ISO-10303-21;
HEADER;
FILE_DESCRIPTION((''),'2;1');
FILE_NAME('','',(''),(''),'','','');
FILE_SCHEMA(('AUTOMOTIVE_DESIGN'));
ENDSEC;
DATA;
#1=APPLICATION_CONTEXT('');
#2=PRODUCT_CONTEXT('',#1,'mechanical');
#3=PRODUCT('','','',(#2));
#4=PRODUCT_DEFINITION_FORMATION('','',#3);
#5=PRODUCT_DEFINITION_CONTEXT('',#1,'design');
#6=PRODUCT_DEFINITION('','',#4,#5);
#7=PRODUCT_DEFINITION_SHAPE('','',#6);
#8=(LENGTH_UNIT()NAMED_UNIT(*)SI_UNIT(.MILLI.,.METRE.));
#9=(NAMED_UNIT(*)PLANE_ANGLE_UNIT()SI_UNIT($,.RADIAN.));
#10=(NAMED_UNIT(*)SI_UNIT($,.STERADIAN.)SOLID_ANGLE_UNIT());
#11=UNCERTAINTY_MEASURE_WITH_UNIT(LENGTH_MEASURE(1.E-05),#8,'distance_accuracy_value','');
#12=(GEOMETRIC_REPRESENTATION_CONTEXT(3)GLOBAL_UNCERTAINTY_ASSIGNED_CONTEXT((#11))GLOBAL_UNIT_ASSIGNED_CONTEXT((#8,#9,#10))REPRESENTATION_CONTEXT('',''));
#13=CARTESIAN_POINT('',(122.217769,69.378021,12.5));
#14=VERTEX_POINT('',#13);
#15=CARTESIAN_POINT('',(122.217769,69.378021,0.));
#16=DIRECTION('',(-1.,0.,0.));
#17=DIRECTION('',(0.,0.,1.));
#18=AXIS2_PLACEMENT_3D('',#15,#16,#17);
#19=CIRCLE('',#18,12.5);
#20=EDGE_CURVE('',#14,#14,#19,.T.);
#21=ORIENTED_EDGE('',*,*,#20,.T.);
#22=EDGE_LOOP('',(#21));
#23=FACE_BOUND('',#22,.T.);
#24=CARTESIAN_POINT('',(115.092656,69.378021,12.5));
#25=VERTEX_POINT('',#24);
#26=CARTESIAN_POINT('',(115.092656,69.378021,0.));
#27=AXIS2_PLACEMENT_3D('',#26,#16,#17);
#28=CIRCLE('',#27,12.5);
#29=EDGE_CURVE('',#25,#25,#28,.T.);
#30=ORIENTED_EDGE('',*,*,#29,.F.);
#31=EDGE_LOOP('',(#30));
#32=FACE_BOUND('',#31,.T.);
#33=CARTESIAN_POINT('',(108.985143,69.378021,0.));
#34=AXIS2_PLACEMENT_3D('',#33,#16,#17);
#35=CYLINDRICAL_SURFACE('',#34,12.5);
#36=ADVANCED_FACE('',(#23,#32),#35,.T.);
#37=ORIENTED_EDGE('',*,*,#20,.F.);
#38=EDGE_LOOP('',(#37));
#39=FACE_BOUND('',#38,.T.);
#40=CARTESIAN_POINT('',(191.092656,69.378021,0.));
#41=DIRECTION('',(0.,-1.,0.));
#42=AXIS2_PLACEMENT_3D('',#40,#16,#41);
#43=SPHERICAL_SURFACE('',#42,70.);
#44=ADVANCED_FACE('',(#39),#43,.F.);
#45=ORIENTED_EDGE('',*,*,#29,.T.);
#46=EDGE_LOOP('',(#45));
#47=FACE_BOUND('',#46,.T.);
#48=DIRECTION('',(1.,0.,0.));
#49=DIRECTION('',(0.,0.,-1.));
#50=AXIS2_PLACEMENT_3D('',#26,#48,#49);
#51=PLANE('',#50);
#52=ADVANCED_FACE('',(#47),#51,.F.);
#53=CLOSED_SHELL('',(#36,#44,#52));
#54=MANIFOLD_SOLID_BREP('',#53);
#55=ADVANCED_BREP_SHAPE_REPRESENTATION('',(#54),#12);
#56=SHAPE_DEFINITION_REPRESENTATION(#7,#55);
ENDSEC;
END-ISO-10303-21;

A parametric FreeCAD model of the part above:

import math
import FreeCAD as App
import Part
import Sketcher
from FreeCAD import Vector

doc = App.newDocument("Part")
body = doc.addObject("PartDesign::Body", "Body")

sketch1 = doc.addObject("Sketcher::SketchObject", "Sketch")
body.addObject(sketch1)
sketch1.AttachmentSupport = (doc.XY_Plane, [""])
sketch1.MapMode = "FlatFace"
sketch1.addGeometry([
    Part.LineSegment(Vector(115, 82, 0), Vector(115, 69, 0)),
    Part.LineSegment(Vector(115, 69, 0), Vector(121, 69, 0)),
    Part.ArcOfCircle(Part.Circle(Vector(191, 69, 0), Vector(0, 0, 1), 70), math.radians(169.71), math.radians(180)),
    Part.LineSegment(Vector(122, 82, 0), Vector(115, 82, 0)),
], False)
sketch1.addGeometry(Part.LineSegment(Vector(115, 69, 0), Vector(191, 69, 0)), True)
sketch1.addConstraint([
    Sketcher.Constraint("Coincident", 0, 2, 1, 1),
    Sketcher.Constraint("Coincident", 1, 2, 2, 2),
    Sketcher.Constraint("Coincident", 2, 1, 3, 1),
    Sketcher.Constraint("Coincident", 3, 2, 0, 1),
    Sketcher.Constraint("Vertical", 0),
    Sketcher.Constraint("Horizontal", 1),
    Sketcher.Constraint("Horizontal", 3),
    Sketcher.Constraint("Horizontal", 4),
    Sketcher.Constraint("Coincident", 4, 1, 0, 2),
    Sketcher.Constraint("Coincident", 4, 2, 2, 3),
    Sketcher.Constraint("Radius", 2, 70.0),
    Sketcher.Constraint("DistanceX", 1, 1, 1, 2, 6.0),
    Sketcher.Constraint("DistanceY", 0, 2, 0, 1, 12.5),
    Sketcher.Constraint("DistanceY", -1, 1, 2, 3, 69.378021),
    Sketcher.Constraint("DistanceX", -1, 1, 2, 1, 122.217769),
])
revolution = doc.addObject("PartDesign::Revolution", "Revolution")
body.addObject(revolution)
revolution.Profile = sketch1
revolution.ReferenceAxis = (sketch1, ["Axis0"])
revolution.Angle = 360

doc.recompute()
